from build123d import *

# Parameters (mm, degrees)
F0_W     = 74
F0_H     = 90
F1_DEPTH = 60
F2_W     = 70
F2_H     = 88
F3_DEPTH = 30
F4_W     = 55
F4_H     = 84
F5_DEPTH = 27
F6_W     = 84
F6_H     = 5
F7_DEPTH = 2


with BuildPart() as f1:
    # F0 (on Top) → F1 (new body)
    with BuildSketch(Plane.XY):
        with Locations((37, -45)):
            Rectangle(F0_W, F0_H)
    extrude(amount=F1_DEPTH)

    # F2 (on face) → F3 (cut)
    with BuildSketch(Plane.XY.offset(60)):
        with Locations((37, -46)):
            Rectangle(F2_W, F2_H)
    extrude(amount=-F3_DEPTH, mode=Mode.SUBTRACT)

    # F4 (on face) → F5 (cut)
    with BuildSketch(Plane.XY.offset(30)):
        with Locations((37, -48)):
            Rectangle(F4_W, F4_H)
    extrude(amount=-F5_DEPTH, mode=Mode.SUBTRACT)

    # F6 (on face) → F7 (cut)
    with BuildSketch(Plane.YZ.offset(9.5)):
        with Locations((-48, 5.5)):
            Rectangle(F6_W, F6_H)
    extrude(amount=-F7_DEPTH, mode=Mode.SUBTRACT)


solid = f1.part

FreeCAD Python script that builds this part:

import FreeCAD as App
import Part
import Sketcher

V = App.Vector
Q = App.Units.Quantity


def add_polygon(sketch, points):
    """Adds a closed chain of lines whose ends are joined by coincident constraints."""
    first, n = sketch.GeometryCount, len(points)
    for a, b in zip(points, points[1:] + points[:1]):
        sketch.addGeometry(Part.LineSegment(App.Vector(*a, 0), App.Vector(*b, 0)), False)
    for i in range(n):
        sketch.addConstraint(Sketcher.Constraint("Coincident", first + i, 2, first + (i + 1) % n, 1))

doc = App.newDocument("Part")
body = doc.addObject("PartDesign::Body", "Body")

sketch1 = body.newObject("Sketcher::SketchObject", "Sketch")
sketch1.AttachmentSupport = (doc.getObject("XY_Plane"), [""])
sketch1.MapMode = "FlatFace"
add_polygon(sketch1, [(0, 0), (0, -90), (74, -90), (74, 0)])
sketch1.addConstraint([
    Sketcher.Constraint("Vertical", 0),
    Sketcher.Constraint("Horizontal", 1),
    Sketcher.Constraint("Vertical", 2),
    Sketcher.Constraint("Horizontal", 3),
    Sketcher.Constraint("Coincident", 3, 2, -1, 1),
    Sketcher.Constraint("DistanceX", 1, 1, 1, 2, Q("74 mm")),
    Sketcher.Constraint("DistanceY", 0, 2, 0, 1, Q("90 mm")),
])
pad1 = body.newObject("PartDesign::Pad", "Pad")
pad1.Profile = sketch1
pad1.Length = 60

sketch2 = body.newObject("Sketcher::SketchObject", "Sketch001")
sketch2.AttachmentSupport = (doc.getObject("XY_Plane"), [""])
sketch2.MapMode = "FlatFace"
sketch2.AttachmentOffset = App.Placement(V(0, 0, 60), App.Rotation())
add_polygon(sketch2, [(2, -2), (2, -90), (72, -90), (72, -2)])
sketch2.addConstraint([
    Sketcher.Constraint("Vertical", 0),
    Sketcher.Constraint("Horizontal", 1),
    Sketcher.Constraint("Vertical", 2),
    Sketcher.Constraint("Horizontal", 3),
    Sketcher.Constraint("DistanceX", 1, 1, 1, 2, Q("70 mm")),
    Sketcher.Constraint("DistanceY", 0, 2, 0, 1, Q("88 mm")),
    Sketcher.Constraint("DistanceX", -1, 1, 0, 2, Q("2 mm")),
    Sketcher.Constraint("DistanceY", 0, 2, -1, 1, Q("90 mm")),
])
pocket1 = body.newObject("PartDesign::Pocket", "Pocket")
pocket1.Profile = sketch2
pocket1.Length = 30

sketch3 = body.newObject("Sketcher::SketchObject", "Sketch002")
sketch3.AttachmentSupport = (doc.getObject("XY_Plane"), [""])
sketch3.MapMode = "FlatFace"
sketch3.AttachmentOffset = App.Placement(V(0, 0, 30), App.Rotation())
add_polygon(sketch3, [(10, -6), (10, -90), (64, -90), (64, -6)])
sketch3.addConstraint([
    Sketcher.Constraint("Vertical", 0),
    Sketcher.Constraint("Horizontal", 1),
    Sketcher.Constraint("Vertical", 2),
    Sketcher.Constraint("Horizontal", 3),
    Sketcher.Constraint("DistanceX", 1, 1, 1, 2, Q("55 mm")),
    Sketcher.Constraint("DistanceY", 0, 2, 0, 1, Q("84 mm")),
    Sketcher.Constraint("DistanceY", 0, 2, -1, 1, Q("90 mm")),
    Sketcher.Constraint("DistanceX", -1, 1, 0, 2, Q("9.5 mm")),
])
pocket2 = body.newObject("PartDesign::Pocket", "Pocket001")
pocket2.Profile = sketch3
pocket2.Length = 27

sketch4 = body.newObject("Sketcher::SketchObject", "Sketch003")
sketch4.AttachmentSupport = (doc.getObject("YZ_Plane"), [""])
sketch4.MapMode = "FlatFace"
sketch4.AttachmentOffset = App.Placement(V(0, 0, 9.5), App.Rotation())
add_polygon(sketch4, [(-90, 8), (-90, 3), (-6, 3), (-6, 8)])
sketch4.addConstraint([
    Sketcher.Constraint("Vertical", 0),
    Sketcher.Constraint("Horizontal", 1),
    Sketcher.Constraint("Vertical", 2),
    Sketcher.Constraint("Horizontal", 3),
    Sketcher.Constraint("DistanceX", 1, 1, 1, 2, Q("84 mm")),
    Sketcher.Constraint("DistanceY", 0, 2, 0, 1, Q("5 mm")),
    Sketcher.Constraint("DistanceX", 0, 2, -1, 1, Q("90 mm")),
    Sketcher.Constraint("DistanceY", -1, 1, 0, 2, Q("3 mm")),
])
pocket3 = body.newObject("PartDesign::Pocket", "Pocket002")
pocket3.Profile = sketch4
pocket3.Length = 2

doc.recompute()
